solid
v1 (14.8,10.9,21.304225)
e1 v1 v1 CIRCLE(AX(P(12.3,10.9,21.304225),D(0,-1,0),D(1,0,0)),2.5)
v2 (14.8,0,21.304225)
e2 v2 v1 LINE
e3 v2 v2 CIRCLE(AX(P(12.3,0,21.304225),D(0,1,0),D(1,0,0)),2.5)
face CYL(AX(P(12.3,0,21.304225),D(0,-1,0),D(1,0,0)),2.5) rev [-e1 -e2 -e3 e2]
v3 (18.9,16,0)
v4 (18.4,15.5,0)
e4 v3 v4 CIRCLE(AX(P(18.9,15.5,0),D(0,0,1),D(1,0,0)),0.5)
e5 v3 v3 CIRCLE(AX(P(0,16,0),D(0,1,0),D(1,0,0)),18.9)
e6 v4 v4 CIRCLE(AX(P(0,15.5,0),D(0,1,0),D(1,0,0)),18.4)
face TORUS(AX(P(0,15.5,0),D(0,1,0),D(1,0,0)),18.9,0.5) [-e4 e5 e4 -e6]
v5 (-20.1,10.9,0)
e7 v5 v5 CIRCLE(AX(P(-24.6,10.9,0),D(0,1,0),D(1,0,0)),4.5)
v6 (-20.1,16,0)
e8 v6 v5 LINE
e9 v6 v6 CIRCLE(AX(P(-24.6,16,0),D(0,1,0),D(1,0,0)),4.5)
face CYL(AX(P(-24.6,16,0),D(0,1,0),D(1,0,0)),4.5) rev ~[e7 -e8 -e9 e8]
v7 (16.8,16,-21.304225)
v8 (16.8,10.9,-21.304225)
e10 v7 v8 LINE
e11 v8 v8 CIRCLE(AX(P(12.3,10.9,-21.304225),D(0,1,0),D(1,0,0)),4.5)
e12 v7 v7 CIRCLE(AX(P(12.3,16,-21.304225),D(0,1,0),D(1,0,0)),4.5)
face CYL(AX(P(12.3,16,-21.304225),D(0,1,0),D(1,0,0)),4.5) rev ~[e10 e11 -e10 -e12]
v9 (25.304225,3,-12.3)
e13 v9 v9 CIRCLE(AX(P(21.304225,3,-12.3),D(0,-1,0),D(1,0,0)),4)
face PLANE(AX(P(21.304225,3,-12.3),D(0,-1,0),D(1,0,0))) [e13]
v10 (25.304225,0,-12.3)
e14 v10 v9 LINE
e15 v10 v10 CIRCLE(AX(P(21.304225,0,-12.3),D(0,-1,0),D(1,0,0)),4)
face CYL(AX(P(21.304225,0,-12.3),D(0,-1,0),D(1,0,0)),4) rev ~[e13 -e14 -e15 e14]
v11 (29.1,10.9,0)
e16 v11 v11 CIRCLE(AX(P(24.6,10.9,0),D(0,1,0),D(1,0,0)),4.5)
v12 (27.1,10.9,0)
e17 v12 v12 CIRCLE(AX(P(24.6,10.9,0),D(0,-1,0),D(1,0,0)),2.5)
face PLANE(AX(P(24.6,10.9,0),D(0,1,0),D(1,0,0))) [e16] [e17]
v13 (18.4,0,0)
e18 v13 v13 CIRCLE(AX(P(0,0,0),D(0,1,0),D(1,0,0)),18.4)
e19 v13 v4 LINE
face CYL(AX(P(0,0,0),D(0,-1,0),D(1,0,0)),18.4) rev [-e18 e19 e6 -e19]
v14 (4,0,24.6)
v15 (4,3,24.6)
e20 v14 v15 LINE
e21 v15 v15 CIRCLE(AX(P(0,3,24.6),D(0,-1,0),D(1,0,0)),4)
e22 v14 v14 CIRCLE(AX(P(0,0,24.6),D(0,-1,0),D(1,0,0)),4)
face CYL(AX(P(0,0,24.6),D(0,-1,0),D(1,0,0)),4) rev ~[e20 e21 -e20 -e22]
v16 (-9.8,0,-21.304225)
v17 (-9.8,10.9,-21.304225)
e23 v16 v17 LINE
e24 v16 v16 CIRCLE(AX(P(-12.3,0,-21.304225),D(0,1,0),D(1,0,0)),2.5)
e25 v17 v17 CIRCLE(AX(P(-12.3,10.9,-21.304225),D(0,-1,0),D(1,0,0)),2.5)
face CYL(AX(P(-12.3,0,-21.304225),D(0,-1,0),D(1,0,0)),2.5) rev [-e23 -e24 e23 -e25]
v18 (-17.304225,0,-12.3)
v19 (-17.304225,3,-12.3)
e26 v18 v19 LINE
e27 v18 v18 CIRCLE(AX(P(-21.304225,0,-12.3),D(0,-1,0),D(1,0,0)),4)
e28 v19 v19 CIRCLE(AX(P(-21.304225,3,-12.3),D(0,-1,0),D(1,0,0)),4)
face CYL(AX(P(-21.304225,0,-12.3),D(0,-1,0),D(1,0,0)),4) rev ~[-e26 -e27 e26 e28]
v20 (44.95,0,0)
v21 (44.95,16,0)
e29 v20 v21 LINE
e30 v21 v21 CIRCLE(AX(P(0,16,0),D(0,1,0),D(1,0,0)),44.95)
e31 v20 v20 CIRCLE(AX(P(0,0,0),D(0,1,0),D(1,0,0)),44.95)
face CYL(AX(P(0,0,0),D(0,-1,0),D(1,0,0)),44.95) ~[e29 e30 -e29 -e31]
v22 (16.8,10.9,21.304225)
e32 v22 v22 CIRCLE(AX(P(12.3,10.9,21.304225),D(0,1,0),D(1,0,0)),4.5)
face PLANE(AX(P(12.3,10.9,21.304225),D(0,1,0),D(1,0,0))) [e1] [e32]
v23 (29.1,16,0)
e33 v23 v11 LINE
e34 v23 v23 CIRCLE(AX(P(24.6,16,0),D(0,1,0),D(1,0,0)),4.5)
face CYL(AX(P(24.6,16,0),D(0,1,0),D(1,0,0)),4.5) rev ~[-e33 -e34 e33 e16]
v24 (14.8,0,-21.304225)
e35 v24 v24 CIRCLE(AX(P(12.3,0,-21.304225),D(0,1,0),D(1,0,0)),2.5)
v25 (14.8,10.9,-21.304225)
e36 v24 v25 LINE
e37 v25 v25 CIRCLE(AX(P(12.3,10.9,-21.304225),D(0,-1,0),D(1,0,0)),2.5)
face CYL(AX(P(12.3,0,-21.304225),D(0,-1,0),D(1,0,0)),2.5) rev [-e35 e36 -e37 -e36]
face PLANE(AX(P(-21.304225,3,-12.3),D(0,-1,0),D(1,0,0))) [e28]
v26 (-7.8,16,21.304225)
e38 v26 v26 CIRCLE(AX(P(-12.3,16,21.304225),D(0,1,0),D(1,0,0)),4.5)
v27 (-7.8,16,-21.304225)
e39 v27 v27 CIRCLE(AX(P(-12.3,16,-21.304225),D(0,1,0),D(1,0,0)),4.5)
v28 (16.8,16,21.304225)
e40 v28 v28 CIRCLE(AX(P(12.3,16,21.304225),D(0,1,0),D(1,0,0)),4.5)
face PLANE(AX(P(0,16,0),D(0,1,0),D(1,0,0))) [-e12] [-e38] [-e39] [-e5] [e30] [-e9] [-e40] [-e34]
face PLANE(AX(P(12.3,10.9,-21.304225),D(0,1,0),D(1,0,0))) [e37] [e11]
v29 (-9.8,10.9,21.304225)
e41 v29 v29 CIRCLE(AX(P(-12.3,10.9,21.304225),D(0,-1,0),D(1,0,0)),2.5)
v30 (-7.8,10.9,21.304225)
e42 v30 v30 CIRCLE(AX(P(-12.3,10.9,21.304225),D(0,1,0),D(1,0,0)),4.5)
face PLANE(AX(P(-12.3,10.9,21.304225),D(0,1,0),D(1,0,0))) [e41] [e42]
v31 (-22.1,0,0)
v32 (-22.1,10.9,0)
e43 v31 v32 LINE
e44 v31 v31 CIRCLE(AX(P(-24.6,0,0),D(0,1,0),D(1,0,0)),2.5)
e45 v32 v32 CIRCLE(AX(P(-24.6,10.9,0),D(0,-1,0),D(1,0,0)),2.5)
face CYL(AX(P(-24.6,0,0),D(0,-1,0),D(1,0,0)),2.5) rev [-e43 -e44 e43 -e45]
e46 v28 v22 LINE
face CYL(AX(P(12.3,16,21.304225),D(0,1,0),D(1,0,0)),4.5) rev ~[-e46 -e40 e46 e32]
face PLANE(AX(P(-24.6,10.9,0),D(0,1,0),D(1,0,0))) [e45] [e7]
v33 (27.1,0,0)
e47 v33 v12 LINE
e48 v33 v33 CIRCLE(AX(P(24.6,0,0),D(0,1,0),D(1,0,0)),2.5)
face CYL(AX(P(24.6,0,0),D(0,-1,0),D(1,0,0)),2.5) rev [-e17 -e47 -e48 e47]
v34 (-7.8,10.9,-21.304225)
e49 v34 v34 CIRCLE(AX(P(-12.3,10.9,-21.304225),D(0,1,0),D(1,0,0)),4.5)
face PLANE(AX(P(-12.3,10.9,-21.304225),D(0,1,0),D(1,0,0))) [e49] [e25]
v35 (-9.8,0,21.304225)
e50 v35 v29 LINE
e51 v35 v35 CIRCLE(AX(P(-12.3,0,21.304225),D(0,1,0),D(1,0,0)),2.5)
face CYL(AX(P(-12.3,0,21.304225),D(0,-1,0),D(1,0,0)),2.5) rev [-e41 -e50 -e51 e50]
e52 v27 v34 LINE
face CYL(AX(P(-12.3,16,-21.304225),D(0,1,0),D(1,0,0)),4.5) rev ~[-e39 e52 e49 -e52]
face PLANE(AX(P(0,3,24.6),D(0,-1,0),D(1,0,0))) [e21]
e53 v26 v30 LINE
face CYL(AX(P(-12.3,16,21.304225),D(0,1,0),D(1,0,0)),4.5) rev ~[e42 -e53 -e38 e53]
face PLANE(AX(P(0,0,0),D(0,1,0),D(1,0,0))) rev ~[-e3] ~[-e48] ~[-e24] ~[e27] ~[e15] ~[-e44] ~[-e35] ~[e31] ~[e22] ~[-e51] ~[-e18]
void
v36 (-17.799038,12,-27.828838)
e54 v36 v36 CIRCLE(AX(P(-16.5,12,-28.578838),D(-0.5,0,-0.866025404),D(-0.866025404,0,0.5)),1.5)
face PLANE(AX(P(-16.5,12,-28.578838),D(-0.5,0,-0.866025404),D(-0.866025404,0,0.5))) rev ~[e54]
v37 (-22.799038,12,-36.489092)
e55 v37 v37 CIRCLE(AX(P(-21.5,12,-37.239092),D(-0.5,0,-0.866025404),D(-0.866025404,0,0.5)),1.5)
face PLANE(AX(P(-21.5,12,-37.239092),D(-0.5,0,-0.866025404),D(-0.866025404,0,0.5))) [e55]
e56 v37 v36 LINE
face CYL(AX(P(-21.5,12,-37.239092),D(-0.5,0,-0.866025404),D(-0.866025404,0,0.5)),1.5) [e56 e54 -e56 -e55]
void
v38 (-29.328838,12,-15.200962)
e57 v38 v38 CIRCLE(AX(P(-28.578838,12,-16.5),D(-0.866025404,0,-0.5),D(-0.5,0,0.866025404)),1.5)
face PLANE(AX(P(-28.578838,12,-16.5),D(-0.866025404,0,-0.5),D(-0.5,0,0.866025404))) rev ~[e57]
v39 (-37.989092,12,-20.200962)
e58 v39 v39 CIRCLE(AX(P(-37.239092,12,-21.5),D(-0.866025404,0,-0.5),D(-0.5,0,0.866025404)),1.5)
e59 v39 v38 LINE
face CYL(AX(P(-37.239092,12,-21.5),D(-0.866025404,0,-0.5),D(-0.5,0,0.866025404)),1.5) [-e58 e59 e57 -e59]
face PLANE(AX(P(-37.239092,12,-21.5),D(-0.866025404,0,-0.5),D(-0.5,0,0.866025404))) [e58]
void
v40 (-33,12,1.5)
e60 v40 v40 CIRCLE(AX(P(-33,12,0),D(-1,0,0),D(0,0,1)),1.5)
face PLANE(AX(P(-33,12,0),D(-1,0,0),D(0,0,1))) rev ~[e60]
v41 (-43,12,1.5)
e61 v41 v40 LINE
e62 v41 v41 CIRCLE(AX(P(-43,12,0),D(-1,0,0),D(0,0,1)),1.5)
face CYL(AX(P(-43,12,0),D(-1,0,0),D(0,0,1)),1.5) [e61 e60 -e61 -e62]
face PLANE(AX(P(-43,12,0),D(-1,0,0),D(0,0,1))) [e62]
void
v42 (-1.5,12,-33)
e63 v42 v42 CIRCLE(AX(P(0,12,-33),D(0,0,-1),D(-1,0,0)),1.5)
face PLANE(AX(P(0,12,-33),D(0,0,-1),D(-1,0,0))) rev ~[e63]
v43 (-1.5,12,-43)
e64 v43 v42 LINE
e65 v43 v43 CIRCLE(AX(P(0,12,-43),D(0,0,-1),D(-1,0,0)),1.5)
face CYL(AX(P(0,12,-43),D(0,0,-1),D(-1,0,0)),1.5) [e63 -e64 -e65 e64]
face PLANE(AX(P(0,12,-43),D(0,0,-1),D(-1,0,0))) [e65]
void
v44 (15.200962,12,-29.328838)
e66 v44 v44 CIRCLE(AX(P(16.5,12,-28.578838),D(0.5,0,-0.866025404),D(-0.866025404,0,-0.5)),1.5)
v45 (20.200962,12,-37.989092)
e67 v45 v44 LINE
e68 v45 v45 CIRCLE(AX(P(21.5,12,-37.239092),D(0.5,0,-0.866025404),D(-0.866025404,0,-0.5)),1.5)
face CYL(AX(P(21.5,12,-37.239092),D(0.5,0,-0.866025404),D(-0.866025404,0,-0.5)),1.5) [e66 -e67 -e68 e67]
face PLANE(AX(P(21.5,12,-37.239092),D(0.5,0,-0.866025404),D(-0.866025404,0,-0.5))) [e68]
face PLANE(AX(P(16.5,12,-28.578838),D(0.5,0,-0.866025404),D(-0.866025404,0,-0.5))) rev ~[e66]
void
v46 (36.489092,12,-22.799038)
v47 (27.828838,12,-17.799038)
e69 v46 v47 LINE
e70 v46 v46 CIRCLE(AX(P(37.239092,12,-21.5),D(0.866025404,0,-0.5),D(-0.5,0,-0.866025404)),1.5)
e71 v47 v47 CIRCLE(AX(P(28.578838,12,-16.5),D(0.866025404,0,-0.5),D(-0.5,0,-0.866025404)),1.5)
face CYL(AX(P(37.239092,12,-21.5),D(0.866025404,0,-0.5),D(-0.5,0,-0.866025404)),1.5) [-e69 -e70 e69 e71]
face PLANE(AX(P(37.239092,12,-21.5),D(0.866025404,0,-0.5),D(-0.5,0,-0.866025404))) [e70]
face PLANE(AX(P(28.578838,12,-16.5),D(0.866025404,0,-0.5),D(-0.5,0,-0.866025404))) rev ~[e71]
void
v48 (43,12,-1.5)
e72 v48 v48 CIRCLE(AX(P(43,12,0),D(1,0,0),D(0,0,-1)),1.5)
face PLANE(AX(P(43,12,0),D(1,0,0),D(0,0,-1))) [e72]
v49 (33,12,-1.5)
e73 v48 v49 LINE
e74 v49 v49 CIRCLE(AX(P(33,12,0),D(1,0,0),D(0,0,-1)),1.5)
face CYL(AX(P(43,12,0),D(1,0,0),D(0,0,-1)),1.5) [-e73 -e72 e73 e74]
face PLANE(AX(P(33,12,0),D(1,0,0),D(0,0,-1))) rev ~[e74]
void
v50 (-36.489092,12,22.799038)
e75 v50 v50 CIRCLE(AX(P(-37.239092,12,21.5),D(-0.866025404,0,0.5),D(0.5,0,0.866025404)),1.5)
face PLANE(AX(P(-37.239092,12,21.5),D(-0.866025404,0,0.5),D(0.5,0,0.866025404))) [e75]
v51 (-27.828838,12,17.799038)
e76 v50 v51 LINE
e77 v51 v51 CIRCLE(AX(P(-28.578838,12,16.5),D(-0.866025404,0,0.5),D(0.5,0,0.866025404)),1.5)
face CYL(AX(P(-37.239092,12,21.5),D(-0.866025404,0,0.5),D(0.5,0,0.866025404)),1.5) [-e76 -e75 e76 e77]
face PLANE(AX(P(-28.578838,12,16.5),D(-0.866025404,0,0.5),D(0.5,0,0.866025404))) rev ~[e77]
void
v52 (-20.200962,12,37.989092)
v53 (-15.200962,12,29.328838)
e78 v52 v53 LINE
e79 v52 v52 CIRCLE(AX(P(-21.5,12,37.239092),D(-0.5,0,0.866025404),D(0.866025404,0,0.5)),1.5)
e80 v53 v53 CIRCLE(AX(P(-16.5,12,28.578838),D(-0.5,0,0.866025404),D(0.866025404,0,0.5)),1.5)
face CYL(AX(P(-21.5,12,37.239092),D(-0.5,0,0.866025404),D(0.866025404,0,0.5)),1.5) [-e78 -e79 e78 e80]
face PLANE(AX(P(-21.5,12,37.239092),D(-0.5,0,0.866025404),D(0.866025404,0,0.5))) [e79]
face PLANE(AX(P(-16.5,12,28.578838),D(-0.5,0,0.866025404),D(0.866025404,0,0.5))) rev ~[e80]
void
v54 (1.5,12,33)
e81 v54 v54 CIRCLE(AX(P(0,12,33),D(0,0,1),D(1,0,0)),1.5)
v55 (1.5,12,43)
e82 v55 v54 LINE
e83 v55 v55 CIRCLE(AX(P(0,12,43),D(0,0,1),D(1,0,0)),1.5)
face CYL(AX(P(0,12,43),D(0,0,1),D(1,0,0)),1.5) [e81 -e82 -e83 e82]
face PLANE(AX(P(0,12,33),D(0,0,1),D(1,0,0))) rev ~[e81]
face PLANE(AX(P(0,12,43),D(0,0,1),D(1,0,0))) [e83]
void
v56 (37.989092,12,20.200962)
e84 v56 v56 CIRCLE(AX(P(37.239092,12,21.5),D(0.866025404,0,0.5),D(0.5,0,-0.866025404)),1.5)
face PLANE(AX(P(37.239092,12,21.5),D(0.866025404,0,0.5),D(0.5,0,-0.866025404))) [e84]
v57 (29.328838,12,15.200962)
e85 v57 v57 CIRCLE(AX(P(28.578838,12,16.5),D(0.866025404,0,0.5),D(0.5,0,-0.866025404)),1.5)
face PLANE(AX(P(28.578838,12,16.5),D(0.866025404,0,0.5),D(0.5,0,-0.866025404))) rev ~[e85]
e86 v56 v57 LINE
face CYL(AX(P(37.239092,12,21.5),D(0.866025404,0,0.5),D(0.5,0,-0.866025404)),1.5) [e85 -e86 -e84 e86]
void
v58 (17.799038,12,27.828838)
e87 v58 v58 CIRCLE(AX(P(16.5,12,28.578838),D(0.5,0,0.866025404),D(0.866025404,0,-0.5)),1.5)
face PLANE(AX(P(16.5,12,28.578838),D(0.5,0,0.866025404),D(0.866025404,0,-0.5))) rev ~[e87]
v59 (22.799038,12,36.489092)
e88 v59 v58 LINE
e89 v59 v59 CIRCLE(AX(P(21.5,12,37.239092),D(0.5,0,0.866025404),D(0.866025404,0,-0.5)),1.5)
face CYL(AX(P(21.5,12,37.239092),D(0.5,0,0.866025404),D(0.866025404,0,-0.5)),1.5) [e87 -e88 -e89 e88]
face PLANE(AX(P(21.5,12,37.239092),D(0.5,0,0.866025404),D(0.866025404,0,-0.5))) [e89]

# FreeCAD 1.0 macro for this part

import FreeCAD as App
import Part
import Sketcher
from FreeCAD import Vector


def edges_at(feature, points):
    """Names of the edges that pass closest to the given points."""
    edges = feature.Shape.Edges
    near = lambda p: min(range(len(edges)), key=lambda i: edges[i].distToShape(Part.Vertex(*p))[0])
    return sorted({f"Edge{near(p) + 1}" for p in points})

doc = App.newDocument("Part")
body = doc.addObject("PartDesign::Body", "Body")

sketch1 = body.newObject("Sketcher::SketchObject", "Sketch")
sketch1.AttachmentSupport = (doc.getObject("XZ_Plane"), [""])
sketch1.MapMode = "FlatFace"
sketch1.addGeometry([
    Part.Circle(Vector(0, 0, 0), Vector(0, 0, 1), 45),
    Part.Circle(Vector(-12.3, 21.3, 0), Vector(0, 0, 1), 2.5),
    Part.Circle(Vector(12.3, 21.3, 0), Vector(0, 0, 1), 2.5),
    Part.Circle(Vector(-24.6, 0, 0), Vector(0, 0, 1), 2.5),
    Part.Circle(Vector(-12.3, -21.3, 0), Vector(0, 0, 1), 2.5),
    Part.Circle(Vector(0, 0, 0), Vector(0, 0, 1), 18.4),
    Part.Circle(Vector(24.6, 0, 0), Vector(0, 0, 1), 2.5),
    Part.Circle(Vector(12.3, -21.3, 0), Vector(0, 0, 1), 2.5),
], False)
sketch1.addConstraint([
    Sketcher.Constraint("Coincident", 0, 3, -1, 1),
    Sketcher.Constraint("Coincident", 5, 3, -1, 1),
    Sketcher.Constraint("Equal", 1, 2),
    Sketcher.Constraint("Equal", 2, 3),
    Sketcher.Constraint("Equal", 3, 4),
    Sketcher.Constraint("Equal", 4, 6),
    Sketcher.Constraint("Equal", 6, 7),
    Sketcher.Constraint("Symmetric", 2, 3, 4, 3, -1, 1),
    Sketcher.Constraint("Symmetric", 3, 3, 6, 3, -1, 1),
    Sketcher.Constraint("Symmetric", 1, 3, 7, 3, -1, 1),
    Sketcher.Constraint("Symmetric", 1, 3, 2, 3, -2),
    Sketcher.Constraint("PointOnObject", 3, 3, -1),
    Sketcher.Constraint("Diameter", 1, 5.0),
    Sketcher.Constraint("Diameter", 0, 89.9),
    Sketcher.Constraint("Diameter", 5, 36.8),
    Sketcher.Constraint("DistanceX", 1, 3, -1, 1, 12.3),
    Sketcher.Constraint("DistanceX", 3, 3, -1, 1, 24.6),
    Sketcher.Constraint("DistanceY", 4, 3, 1, 3, 42.60845),
])
pad1 = body.newObject("PartDesign::Pad", "Pad")
pad1.Profile = sketch1
pad1.Length = 16
pad1.Reversed = True

sketch2 = body.newObject("Sketcher::SketchObject", "Sketch001")
sketch2.AttachmentSupport = (doc.getObject("XZ_Plane"), [""])
sketch2.MapMode = "FlatFace"
sketch2.addGeometry([
    Part.Circle(Vector(-21.3, -12.3, 0), Vector(0, 0, 1), 4),
    Part.Circle(Vector(0, 24.6, 0), Vector(0, 0, 1), 4),
    Part.Circle(Vector(21.3, -12.3, 0), Vector(0, 0, 1), 4),
], False)
sketch2.addConstraint([
    Sketcher.Constraint("Equal", 0, 1),
    Sketcher.Constraint("Equal", 1, 2),
    Sketcher.Constraint("Symmetric", 0, 3, 2, 3, -2),
    Sketcher.Constraint("PointOnObject", 1, 3, -2),
    Sketcher.Constraint("Diameter", 0, 8.0),
    Sketcher.Constraint("DistanceY", 0, 3, -1, 1, 12.3),
    Sketcher.Constraint("DistanceY", -1, 1, 1, 3, 24.6),
    Sketcher.Constraint("DistanceX", 0, 3, 2, 3, 42.60845),
])
pocket1 = body.newObject("PartDesign::Pocket", "Pocket")
pocket1.Profile = sketch2
pocket1.Length = 3

sketch3 = body.newObject("Sketcher::SketchObject", "Sketch002")
sketch3.AttachmentSupport = (doc.getObject("XZ_Plane"), [""])
sketch3.MapMode = "FlatFace"
sketch3.AttachmentOffset = App.Placement(Vector(0, 0, -16), App.Rotation())
sketch3.addGeometry([
    Part.Circle(Vector(-24.6, 0, 0), Vector(0, 0, 1), 4.5),
    Part.Circle(Vector(-12.3, -21.3, 0), Vector(0, 0, 1), 4.5),
    Part.Circle(Vector(12.3, -21.3, 0), Vector(0, 0, 1), 4.5),
    Part.Circle(Vector(24.6, 0, 0), Vector(0, 0, 1), 4.5),
    Part.Circle(Vector(12.3, 21.3, 0), Vector(0, 0, 1), 4.5),
    Part.Circle(Vector(-12.3, 21.3, 0), Vector(0, 0, 1), 4.5),
], False)
sketch3.addConstraint([
    Sketcher.Constraint("Equal", 0, 1),
    Sketcher.Constraint("Equal", 1, 2),
    Sketcher.Constraint("Equal", 2, 3),
    Sketcher.Constraint("Equal", 3, 4),
    Sketcher.Constraint("Equal", 4, 5),
    Sketcher.Constraint("Symmetric", 0, 3, 3, 3, -1, 1),
    Sketcher.Constraint("Symmetric", 1, 3, 4, 3, -1, 1),
    Sketcher.Constraint("Symmetric", 2, 3, 5, 3, -1, 1),
    Sketcher.Constraint("Symmetric", 1, 3, 2, 3, -2),
    Sketcher.Constraint("PointOnObject", 0, 3, -1),
    Sketcher.Constraint("Diameter", 0, 9.0),
    Sketcher.Constraint("DistanceX", 0, 3, -1, 1, 24.6),
    Sketcher.Constraint("DistanceX", 1, 3, -1, 1, 12.3),
    Sketcher.Constraint("DistanceY", 2, 3, 4, 3, 42.60845),
])
pocket2 = body.newObject("PartDesign::Pocket", "Pocket001")
pocket2.Profile = sketch3
pocket2.Length = 5.1
pocket2.Reversed = True

sketch4 = body.newObject("Sketcher::SketchObject", "Sketch003")
sketch4.AttachmentSupport = (doc.getObject("YZ_Plane"), [""])
sketch4.MapMode = "FlatFace"
sketch4.AttachmentOffset = App.Placement(Vector(0, 0, 43), App.Rotation())
sketch4.addGeometry(Part.Circle(Vector(12, 0, 0), Vector(0, 0, 1), 1.5), False)
sketch4.addConstraint([
    Sketcher.Constraint("PointOnObject", 0, 3, -1),
    Sketcher.Constraint("Diameter", 0, 3.0),
    Sketcher.Constraint("DistanceX", -1, 1, 0, 3, 12.0),
])
pocket3 = body.newObject("PartDesign::Pocket", "Pocket002")
pocket3.Profile = sketch4
pocket3.Length = 10
doc.recompute()

polarpattern = body.newObject("PartDesign::PolarPattern", "PolarPattern")
polarpattern.Originals = [pocket3]
polarpattern.Axis = (doc.getObject("Y_Axis"), [""])
polarpattern.Angle = 360
polarpattern.Occurrences = 12
body.Tip = polarpattern
doc.recompute()

fillet = body.newObject("PartDesign::Fillet", "Fillet")
fillet.Base = (polarpattern, edges_at(polarpattern, [(-18.4, 16, 0)]))
fillet.Radius = 0.5

doc.recompute()
